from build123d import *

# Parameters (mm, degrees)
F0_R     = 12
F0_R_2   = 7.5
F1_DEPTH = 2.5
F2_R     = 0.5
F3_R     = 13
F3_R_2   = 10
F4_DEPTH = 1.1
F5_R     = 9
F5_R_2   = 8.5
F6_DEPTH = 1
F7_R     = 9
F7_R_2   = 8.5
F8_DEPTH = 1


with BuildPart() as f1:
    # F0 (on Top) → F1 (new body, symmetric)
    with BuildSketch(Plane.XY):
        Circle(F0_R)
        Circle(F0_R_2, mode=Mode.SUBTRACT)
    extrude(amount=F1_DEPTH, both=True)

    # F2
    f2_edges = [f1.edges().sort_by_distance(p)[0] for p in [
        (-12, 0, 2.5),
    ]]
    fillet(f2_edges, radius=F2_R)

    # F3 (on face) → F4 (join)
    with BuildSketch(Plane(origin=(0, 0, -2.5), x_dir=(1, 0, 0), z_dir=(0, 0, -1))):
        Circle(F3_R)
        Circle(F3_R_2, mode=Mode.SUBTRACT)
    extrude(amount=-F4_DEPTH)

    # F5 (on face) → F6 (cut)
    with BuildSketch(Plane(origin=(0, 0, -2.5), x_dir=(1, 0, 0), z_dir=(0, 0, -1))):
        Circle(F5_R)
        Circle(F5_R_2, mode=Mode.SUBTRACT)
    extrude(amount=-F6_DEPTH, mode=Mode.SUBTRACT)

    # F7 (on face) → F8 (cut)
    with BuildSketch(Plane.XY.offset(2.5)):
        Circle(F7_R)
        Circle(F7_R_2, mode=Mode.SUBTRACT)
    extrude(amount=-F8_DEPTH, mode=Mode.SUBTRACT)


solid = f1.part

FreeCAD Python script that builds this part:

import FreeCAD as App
import Part
import Sketcher

V = App.Vector
Q = App.Units.Quantity


def edges_at(feature, points):
    """Names of the edges that pass closest to the given points."""
    edges = feature.Shape.Edges
    near = lambda p: min(range(len(edges)), key=lambda i: edges[i].distToShape(Part.Vertex(*p))[0])
    return sorted({f"Edge{near(p) + 1}" for p in points})

doc = App.newDocument("Part")
body = doc.addObject("PartDesign::Body", "Body")

# Sketch on XY plane
sketch1 = doc.addObject("Sketcher::SketchObject", "Sketch")
body.addObject(sketch1)
sketch1.AttachmentSupport = (doc.XY_Plane, [""])
sketch1.MapMode = "FlatFace"
sketch1.addGeometry([
    Part.Circle(V(0, 0, 0), V(0, 0, 1), 12),
    Part.Circle(V(0, 0, 0), V(0, 0, 1), 8),
], False)
sketch1.addConstraint([
    Sketcher.Constraint("Coincident", 0, 3, -1, 1),
    Sketcher.Constraint("Coincident", 1, 3, -1, 1),
    Sketcher.Constraint("Diameter", 0, Q("24 mm")),
    Sketcher.Constraint("Diameter", 1, Q("15 mm")),
])
pad1 = doc.addObject("PartDesign::Pad", "Pad")
body.addObject(pad1)
pad1.Profile = sketch1
pad1.Length = 5
pad1.Midplane = True
doc.recompute()

fillet = doc.addObject("PartDesign::Fillet", "Fillet")
body.addObject(fillet)
fillet.Base = (pad1, edges_at(pad1, [(-12, 0, 2.5)]))
fillet.Radius = 0.5

# Sketch on XY plane
sketch2 = doc.addObject("Sketcher::SketchObject", "Sketch001")
body.addObject(sketch2)
sketch2.AttachmentSupport = (doc.XY_Plane, [""])
sketch2.MapMode = "FlatFace"
sketch2.AttachmentOffset = App.Placement(V(0, 0, -2.5), App.Rotation())
sketch2.addGeometry([
    Part.Circle(V(0, 0, 0), V(0, 0, 1), 13),
    Part.Circle(V(0, 0, 0), V(0, 0, 1), 10),
], False)
sketch2.addConstraint([
    Sketcher.Constraint("Coincident", 0, 3, -1, 1),
    Sketcher.Constraint("Coincident", 1, 3, -1, 1),
    Sketcher.Constraint("Diameter", 0, Q("26 mm")),
    Sketcher.Constraint("Diameter", 1, Q("20 mm")),
])
pad2 = doc.addObject("PartDesign::Pad", "Pad001")
body.addObject(pad2)
pad2.Profile = sketch2
pad2.Length = 1.1

# Sketch on XY plane
sketch3 = doc.addObject("Sketcher::SketchObject", "Sketch002")
body.addObject(sketch3)
sketch3.AttachmentSupport = (doc.XY_Plane, [""])
sketch3.MapMode = "FlatFace"
sketch3.AttachmentOffset = App.Placement(V(0, 0, -2.5), App.Rotation())
sketch3.addGeometry([
    Part.Circle(V(0, 0, 0), V(0, 0, 1), 9),
    Part.Circle(V(0, 0, 0), V(0, 0, 1), 8),
], False)
sketch3.addConstraint([
    Sketcher.Constraint("Coincident", 0, 3, -1, 1),
    Sketcher.Constraint("Coincident", 1, 3, -1, 1),
    Sketcher.Constraint("Diameter", 0, Q("18 mm")),
    Sketcher.Constraint("Diameter", 1, Q("17 mm")),
])
pocket1 = doc.addObject("PartDesign::Pocket", "Pocket")
body.addObject(pocket1)
pocket1.Profile = sketch3
pocket1.Length = 1
pocket1.Reversed = True

# Sketch on XY plane
sketch4 = doc.addObject("Sketcher::SketchObject", "Sketch003")
body.addObject(sketch4)
sketch4.AttachmentSupport = (doc.XY_Plane, [""])
sketch4.MapMode = "FlatFace"
sketch4.AttachmentOffset = App.Placement(V(0, 0, 2.5), App.Rotation())
sketch4.addGeometry([
    Part.Circle(V(0, 0, 0), V(0, 0, 1), 9),
    Part.Circle(V(0, 0, 0), V(0, 0, 1), 8),
], False)
sketch4.addConstraint([
    Sketcher.Constraint("Coincident", 0, 3, -1, 1),
    Sketcher.Constraint("Coincident", 1, 3, -1, 1),
    Sketcher.Constraint("Diameter", 0, Q("18 mm")),
    Sketcher.Constraint("Diameter", 1, Q("17 mm")),
])
pocket2 = doc.addObject("PartDesign::Pocket", "Pocket001")
body.addObject(pocket2)
pocket2.Profile = sketch4
pocket2.Length = 1

doc.recompute()
